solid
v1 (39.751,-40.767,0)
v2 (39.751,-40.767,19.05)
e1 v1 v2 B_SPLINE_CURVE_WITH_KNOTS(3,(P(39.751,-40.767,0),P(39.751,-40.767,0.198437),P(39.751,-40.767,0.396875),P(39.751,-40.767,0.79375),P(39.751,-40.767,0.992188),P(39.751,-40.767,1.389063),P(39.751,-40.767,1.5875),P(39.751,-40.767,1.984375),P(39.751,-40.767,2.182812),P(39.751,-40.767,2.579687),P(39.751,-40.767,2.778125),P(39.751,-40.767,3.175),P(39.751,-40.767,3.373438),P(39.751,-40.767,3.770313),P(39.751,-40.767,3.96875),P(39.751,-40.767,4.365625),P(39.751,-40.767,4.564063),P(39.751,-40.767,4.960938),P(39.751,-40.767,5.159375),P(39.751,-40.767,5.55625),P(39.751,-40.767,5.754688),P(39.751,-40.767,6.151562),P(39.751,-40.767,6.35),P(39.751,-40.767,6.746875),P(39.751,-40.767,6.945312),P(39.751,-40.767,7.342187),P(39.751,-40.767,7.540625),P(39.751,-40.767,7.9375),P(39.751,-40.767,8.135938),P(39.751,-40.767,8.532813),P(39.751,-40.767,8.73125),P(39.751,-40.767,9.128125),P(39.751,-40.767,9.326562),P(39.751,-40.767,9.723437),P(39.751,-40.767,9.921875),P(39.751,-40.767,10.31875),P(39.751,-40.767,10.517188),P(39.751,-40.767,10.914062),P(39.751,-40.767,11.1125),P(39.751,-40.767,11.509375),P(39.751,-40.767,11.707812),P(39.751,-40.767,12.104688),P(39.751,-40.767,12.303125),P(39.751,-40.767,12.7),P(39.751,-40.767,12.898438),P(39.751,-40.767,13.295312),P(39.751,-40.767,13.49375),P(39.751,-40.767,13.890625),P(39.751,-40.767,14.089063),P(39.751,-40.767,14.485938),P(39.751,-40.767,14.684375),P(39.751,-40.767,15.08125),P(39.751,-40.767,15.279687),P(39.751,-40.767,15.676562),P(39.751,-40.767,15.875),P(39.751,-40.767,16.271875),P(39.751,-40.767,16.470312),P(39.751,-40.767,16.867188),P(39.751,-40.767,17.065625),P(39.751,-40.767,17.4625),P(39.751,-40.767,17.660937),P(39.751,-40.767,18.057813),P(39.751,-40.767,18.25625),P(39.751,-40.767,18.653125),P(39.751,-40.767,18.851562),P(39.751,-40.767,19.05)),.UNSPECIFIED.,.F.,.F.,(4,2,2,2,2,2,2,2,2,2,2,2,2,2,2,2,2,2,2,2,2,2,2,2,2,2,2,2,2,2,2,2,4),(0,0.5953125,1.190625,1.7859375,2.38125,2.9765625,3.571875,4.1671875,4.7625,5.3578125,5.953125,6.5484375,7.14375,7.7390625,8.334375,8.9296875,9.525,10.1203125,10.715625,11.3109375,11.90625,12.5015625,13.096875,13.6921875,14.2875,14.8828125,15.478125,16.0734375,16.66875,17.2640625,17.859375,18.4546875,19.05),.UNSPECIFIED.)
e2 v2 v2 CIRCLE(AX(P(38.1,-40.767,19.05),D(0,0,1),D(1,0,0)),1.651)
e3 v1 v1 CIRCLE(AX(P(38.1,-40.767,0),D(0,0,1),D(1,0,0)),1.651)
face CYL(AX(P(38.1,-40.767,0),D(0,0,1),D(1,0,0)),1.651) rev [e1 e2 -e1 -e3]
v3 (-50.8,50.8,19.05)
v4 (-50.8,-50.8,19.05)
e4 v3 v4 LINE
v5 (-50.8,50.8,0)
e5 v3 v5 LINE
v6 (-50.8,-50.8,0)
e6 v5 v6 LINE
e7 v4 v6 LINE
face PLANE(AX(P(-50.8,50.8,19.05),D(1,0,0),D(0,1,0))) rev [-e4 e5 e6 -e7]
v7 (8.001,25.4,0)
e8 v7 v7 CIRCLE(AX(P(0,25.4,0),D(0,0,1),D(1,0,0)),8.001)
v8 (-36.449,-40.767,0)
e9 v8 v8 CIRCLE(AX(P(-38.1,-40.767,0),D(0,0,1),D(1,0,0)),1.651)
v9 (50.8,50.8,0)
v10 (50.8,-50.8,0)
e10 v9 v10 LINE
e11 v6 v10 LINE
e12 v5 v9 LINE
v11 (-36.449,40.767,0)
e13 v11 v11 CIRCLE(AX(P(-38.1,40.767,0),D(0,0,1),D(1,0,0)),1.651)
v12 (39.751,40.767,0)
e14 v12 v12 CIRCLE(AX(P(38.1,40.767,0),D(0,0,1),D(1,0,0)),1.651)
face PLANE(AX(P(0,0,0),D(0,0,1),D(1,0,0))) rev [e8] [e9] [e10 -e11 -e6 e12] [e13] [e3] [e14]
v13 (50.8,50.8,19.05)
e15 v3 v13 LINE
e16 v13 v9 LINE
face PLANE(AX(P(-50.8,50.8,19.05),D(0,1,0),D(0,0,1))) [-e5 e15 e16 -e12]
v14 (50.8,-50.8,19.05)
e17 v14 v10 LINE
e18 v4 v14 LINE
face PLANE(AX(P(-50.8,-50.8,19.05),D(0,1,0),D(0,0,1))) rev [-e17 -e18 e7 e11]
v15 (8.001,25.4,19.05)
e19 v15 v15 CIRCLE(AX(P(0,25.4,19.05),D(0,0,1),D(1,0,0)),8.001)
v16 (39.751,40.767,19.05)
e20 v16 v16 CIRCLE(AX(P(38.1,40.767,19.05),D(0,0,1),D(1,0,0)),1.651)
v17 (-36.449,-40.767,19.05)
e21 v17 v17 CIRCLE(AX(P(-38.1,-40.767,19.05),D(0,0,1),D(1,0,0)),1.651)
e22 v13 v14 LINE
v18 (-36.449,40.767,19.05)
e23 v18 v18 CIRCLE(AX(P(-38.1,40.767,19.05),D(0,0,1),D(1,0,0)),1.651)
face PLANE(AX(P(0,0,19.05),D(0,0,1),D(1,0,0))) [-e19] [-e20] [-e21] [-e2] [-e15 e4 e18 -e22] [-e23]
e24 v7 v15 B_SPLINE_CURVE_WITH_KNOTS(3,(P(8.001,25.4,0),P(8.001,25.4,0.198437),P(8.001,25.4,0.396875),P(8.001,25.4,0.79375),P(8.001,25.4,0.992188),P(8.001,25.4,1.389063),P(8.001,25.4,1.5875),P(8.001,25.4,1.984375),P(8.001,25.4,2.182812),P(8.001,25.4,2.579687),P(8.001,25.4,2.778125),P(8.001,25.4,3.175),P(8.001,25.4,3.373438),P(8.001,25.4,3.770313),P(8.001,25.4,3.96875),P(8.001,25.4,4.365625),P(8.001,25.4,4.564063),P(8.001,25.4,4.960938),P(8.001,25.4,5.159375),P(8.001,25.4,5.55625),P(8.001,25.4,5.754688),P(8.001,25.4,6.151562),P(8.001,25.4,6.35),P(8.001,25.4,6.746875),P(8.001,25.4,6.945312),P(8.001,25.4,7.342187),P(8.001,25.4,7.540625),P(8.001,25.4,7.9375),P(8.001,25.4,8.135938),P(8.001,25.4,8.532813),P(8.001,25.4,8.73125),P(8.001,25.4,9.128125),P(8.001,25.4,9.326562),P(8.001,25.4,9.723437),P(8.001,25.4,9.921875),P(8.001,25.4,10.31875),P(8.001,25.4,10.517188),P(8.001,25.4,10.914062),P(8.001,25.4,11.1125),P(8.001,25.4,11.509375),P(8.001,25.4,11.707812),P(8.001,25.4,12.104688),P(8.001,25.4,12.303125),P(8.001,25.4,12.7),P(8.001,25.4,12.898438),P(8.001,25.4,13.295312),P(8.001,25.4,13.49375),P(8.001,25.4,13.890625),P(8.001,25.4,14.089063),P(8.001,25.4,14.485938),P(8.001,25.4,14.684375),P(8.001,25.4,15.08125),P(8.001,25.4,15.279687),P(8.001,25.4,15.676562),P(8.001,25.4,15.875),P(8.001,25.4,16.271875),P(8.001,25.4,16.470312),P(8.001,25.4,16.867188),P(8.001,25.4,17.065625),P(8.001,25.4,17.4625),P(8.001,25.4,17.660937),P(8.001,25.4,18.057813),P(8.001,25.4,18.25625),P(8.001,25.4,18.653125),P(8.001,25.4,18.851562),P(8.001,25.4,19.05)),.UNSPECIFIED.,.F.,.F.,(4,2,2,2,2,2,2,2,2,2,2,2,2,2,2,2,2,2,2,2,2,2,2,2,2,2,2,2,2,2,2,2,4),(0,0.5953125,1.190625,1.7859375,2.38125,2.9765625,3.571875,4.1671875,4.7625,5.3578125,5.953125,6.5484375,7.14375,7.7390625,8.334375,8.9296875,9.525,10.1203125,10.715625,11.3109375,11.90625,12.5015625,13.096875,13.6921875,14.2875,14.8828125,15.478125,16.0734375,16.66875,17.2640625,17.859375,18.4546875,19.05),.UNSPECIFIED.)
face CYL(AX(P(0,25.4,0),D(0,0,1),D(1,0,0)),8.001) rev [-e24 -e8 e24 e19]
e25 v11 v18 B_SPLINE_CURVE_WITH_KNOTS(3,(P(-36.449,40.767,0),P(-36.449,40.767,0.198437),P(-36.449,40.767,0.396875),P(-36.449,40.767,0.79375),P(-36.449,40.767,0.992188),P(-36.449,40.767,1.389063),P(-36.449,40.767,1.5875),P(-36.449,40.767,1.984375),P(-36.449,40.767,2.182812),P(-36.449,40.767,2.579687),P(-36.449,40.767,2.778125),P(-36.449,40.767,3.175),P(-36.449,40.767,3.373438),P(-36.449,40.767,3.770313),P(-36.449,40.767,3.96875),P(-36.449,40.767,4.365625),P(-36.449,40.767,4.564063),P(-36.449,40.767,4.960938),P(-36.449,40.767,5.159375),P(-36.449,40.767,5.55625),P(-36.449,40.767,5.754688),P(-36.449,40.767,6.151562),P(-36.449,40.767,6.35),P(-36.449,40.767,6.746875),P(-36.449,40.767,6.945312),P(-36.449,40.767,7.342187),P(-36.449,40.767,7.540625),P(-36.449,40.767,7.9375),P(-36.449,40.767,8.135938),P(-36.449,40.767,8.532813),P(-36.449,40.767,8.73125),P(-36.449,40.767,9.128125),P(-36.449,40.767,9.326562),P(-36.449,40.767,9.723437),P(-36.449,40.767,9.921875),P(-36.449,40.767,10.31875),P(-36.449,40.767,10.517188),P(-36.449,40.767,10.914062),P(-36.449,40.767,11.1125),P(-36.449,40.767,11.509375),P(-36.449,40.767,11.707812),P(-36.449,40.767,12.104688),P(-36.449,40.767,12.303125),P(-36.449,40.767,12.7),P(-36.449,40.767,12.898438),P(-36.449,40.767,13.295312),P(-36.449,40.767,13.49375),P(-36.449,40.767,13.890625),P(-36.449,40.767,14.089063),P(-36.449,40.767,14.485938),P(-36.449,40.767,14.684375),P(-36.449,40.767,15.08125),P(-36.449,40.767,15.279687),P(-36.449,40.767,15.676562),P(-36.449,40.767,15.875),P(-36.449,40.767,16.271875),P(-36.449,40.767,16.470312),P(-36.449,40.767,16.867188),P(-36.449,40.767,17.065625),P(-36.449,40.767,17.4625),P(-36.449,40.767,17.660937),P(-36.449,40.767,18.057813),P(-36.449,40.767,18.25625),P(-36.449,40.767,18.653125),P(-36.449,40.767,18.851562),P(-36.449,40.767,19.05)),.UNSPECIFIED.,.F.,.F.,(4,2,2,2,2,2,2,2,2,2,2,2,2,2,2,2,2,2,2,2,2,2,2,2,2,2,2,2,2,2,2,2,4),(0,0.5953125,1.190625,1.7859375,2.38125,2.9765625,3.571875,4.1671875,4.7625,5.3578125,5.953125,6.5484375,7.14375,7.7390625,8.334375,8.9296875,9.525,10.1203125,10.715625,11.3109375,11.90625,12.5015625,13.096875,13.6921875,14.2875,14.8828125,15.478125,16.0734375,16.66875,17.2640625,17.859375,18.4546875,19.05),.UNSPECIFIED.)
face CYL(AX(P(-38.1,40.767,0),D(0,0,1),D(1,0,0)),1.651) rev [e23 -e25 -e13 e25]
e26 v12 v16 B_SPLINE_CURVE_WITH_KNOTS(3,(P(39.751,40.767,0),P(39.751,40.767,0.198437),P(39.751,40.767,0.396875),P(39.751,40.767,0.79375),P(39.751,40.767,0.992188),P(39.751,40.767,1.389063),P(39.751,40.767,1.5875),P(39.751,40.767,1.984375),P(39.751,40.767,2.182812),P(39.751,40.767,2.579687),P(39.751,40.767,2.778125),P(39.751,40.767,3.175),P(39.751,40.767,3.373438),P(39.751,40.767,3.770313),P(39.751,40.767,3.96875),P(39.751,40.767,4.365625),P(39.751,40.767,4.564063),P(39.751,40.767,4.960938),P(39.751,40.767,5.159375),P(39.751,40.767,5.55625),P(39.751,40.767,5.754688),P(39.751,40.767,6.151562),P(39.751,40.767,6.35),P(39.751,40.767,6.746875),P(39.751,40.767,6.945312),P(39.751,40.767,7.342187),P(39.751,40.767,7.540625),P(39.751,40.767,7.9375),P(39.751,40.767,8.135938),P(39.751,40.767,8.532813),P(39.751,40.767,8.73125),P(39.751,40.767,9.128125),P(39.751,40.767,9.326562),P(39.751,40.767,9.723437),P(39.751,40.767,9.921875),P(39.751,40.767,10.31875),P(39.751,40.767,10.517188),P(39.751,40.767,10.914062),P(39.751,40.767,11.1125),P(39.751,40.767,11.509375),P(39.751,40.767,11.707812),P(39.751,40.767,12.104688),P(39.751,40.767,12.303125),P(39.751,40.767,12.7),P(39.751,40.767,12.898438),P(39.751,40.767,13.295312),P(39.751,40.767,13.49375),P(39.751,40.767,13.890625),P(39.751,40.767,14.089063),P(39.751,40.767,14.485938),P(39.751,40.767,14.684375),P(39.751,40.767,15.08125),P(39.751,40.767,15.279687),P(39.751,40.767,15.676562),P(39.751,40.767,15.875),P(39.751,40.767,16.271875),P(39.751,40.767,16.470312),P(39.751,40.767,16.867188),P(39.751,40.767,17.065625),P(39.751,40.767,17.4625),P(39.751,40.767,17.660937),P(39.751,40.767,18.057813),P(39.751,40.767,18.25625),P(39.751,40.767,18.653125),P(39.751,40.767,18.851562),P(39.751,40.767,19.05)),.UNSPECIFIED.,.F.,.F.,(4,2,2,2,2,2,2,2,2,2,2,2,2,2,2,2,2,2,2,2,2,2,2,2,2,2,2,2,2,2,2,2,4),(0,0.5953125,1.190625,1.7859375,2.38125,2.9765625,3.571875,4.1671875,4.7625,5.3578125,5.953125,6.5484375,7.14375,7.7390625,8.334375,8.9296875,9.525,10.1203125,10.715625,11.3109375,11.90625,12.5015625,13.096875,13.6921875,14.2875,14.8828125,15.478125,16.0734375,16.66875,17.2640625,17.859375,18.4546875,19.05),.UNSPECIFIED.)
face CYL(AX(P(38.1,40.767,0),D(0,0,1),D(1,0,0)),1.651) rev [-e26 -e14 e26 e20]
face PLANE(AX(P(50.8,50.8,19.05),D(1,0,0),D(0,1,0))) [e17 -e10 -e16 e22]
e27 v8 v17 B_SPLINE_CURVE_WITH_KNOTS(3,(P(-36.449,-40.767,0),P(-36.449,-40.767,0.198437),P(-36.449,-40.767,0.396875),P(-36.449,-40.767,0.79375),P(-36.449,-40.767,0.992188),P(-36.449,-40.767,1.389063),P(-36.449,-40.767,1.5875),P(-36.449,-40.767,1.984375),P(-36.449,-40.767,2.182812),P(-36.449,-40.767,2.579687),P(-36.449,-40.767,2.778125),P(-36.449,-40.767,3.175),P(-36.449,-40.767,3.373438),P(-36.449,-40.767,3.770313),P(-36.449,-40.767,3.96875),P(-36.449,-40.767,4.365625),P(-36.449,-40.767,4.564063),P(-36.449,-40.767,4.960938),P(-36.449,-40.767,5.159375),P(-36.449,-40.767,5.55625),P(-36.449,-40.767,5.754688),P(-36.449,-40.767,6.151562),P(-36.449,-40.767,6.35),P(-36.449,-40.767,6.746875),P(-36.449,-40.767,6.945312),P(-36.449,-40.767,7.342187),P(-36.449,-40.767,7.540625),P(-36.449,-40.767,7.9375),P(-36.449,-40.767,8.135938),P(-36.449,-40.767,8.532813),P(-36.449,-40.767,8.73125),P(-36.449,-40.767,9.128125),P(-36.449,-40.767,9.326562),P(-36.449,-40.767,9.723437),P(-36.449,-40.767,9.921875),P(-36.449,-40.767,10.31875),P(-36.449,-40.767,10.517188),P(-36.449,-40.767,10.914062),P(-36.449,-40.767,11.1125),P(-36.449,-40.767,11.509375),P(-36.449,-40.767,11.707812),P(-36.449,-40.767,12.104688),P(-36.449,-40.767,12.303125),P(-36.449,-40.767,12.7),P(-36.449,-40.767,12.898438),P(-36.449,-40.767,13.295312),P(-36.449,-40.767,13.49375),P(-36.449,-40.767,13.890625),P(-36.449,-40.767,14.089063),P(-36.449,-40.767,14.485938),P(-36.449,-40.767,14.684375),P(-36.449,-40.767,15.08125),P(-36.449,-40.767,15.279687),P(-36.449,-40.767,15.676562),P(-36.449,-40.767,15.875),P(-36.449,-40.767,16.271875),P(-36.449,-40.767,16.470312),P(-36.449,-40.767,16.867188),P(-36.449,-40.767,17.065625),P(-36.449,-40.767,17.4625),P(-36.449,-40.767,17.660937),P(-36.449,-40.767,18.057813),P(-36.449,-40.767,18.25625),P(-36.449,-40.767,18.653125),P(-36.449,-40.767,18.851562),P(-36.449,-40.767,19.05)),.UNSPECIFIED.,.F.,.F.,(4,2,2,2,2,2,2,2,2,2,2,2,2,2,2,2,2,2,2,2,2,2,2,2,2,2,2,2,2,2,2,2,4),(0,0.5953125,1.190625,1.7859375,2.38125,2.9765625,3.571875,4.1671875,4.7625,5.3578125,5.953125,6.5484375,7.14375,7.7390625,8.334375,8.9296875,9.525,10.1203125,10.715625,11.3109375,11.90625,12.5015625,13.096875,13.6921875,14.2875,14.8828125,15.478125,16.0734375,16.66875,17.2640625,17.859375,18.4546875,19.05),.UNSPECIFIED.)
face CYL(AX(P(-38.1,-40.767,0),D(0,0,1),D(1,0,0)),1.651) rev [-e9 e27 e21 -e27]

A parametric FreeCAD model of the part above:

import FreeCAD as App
import Part
import Sketcher

V = App.Vector
Q = App.Units.Quantity


def add_polygon(sketch, points):
    """Adds a closed chain of lines whose ends are joined by coincident constraints."""
    first, n = sketch.GeometryCount, len(points)
    for a, b in zip(points, points[1:] + points[:1]):
        sketch.addGeometry(Part.LineSegment(App.Vector(*a, 0), App.Vector(*b, 0)), False)
    for i in range(n):
        sketch.addConstraint(Sketcher.Constraint("Coincident", first + i, 2, first + (i + 1) % n, 1))

doc = App.newDocument("Part")
body = doc.addObject("PartDesign::Body", "Body")

# Sketch on XY plane
sketch1 = doc.addObject("Sketcher::SketchObject", "Sketch")
body.addObject(sketch1)
sketch1.AttachmentSupport = (doc.XY_Plane, [""])
sketch1.MapMode = "FlatFace"
add_polygon(sketch1, [(-51, 51), (-51, -51), (51, -51), (51, 51)])  # lines 0-3
sketch1.addConstraint(Sketcher.Constraint("Vertical", 0))
sketch1.addConstraint(Sketcher.Constraint("Horizontal", 1))
sketch1.addConstraint(Sketcher.Constraint("Vertical", 2))
sketch1.addConstraint(Sketcher.Constraint("Horizontal", 3))
sketch1.addConstraint(Sketcher.Constraint("Symmetric", 0, 2, 2, 2, -1, 1))
sketch1.addConstraint(Sketcher.Constraint("Equal", 3, 0))
sketch1.addConstraint(Sketcher.Constraint("DistanceX", 1, 1, 1, 2, Q("4 in")))
pad1 = doc.addObject("PartDesign::Pad", "Pad")
body.addObject(pad1)
pad1.Profile = sketch1
pad1.Length = Q("0.75 in")

# Sketch on XY plane
sketch2 = doc.addObject("Sketcher::SketchObject", "Sketch001")
body.addObject(sketch2)
sketch2.AttachmentSupport = (doc.XY_Plane, [""])
sketch2.MapMode = "FlatFace"
sketch2.AttachmentOffset = App.Placement(V(0, 0, 0.75 * 25.4), App.Rotation())
sketch2.addGeometry(Part.Circle(V(0, 25, 0), V(0, 0, 1), 8), False)
sketch2.addConstraint(Sketcher.Constraint("PointOnObject", 0, 3, -2))
sketch2.addConstraint(Sketcher.Constraint("Diameter", 0, Q("0.63 in")))
sketch2.addConstraint(Sketcher.Constraint("DistanceY", -1, 1, 0, 3, Q("1 in")))
pocket1 = doc.addObject("PartDesign::Pocket", "Pocket")
body.addObject(pocket1)
pocket1.Profile = sketch2
pocket1.Length = Q("0.75 in")

# Sketch on XY plane
sketch3 = doc.addObject("Sketcher::SketchObject", "Sketch002")
body.addObject(sketch3)
sketch3.AttachmentSupport = (doc.XY_Plane, [""])
sketch3.MapMode = "FlatFace"
sketch3.AttachmentOffset = App.Placement(V(0, 0, 0.75 * 25.4), App.Rotation())
sketch3.addGeometry(Part.Circle(V(-38.1, -40.8, 0), V(0, 0, 1), 1.7), False)
sketch3.addConstraint(Sketcher.Constraint("Diameter", 0, Q("0.13 in")))
sketch3.addConstraint(Sketcher.Constraint("DistanceX", 0, 3, -1, 1, Q("1.5 in")))
sketch3.addConstraint(Sketcher.Constraint("DistanceY", 0, 3, -1, 1, Q("1.605 in")))
pocket2 = doc.addObject("PartDesign::Pocket", "Pocket001")
body.addObject(pocket2)
pocket2.Profile = sketch3
pocket2.Length = Q("0.75 in")

# Sketch on XY plane
sketch4 = doc.addObject("Sketcher::SketchObject", "Sketch003")
body.addObject(sketch4)
sketch4.AttachmentSupport = (doc.XY_Plane, [""])
sketch4.MapMode = "FlatFace"
sketch4.AttachmentOffset = App.Placement(V(0, 0, 0.75 * 25.4), App.Rotation())
sketch4.addGeometry(Part.Circle(V(-38.1, 40.8, 0), V(0, 0, 1), 1.7), False)
sketch4.addGeometry(Part.Circle(V(38.1, 40.8, 0), V(0, 0, 1), 1.7), False)
sketch4.addGeometry(Part.Circle(V(38.1, -40.8, 0), V(0, 0, 1), 1.7), False)
sketch4.addConstraint(Sketcher.Constraint("Equal", 0, 1))
sketch4.addConstraint(Sketcher.Constraint("Equal", 1, 2))
sketch4.addConstraint(Sketcher.Constraint("Symmetric", 0, 3, 2, 3, -1, 1))
sketch4.addConstraint(Sketcher.Constraint("Symmetric", 0, 3, 1, 3, -2))
sketch4.addConstraint(Sketcher.Constraint("Diameter", 0, Q("0.13 in")))
sketch4.addConstraint(Sketcher.Constraint("DistanceX", 0, 3, 1, 3, Q("3 in")))
sketch4.addConstraint(Sketcher.Constraint("DistanceY", 2, 3, 1, 3, Q("3.21 in")))
pocket3 = doc.addObject("PartDesign::Pocket", "Pocket002")
body.addObject(pocket3)
pocket3.Profile = sketch4
pocket3.Length = Q("0.75 in")

doc.recompute()
